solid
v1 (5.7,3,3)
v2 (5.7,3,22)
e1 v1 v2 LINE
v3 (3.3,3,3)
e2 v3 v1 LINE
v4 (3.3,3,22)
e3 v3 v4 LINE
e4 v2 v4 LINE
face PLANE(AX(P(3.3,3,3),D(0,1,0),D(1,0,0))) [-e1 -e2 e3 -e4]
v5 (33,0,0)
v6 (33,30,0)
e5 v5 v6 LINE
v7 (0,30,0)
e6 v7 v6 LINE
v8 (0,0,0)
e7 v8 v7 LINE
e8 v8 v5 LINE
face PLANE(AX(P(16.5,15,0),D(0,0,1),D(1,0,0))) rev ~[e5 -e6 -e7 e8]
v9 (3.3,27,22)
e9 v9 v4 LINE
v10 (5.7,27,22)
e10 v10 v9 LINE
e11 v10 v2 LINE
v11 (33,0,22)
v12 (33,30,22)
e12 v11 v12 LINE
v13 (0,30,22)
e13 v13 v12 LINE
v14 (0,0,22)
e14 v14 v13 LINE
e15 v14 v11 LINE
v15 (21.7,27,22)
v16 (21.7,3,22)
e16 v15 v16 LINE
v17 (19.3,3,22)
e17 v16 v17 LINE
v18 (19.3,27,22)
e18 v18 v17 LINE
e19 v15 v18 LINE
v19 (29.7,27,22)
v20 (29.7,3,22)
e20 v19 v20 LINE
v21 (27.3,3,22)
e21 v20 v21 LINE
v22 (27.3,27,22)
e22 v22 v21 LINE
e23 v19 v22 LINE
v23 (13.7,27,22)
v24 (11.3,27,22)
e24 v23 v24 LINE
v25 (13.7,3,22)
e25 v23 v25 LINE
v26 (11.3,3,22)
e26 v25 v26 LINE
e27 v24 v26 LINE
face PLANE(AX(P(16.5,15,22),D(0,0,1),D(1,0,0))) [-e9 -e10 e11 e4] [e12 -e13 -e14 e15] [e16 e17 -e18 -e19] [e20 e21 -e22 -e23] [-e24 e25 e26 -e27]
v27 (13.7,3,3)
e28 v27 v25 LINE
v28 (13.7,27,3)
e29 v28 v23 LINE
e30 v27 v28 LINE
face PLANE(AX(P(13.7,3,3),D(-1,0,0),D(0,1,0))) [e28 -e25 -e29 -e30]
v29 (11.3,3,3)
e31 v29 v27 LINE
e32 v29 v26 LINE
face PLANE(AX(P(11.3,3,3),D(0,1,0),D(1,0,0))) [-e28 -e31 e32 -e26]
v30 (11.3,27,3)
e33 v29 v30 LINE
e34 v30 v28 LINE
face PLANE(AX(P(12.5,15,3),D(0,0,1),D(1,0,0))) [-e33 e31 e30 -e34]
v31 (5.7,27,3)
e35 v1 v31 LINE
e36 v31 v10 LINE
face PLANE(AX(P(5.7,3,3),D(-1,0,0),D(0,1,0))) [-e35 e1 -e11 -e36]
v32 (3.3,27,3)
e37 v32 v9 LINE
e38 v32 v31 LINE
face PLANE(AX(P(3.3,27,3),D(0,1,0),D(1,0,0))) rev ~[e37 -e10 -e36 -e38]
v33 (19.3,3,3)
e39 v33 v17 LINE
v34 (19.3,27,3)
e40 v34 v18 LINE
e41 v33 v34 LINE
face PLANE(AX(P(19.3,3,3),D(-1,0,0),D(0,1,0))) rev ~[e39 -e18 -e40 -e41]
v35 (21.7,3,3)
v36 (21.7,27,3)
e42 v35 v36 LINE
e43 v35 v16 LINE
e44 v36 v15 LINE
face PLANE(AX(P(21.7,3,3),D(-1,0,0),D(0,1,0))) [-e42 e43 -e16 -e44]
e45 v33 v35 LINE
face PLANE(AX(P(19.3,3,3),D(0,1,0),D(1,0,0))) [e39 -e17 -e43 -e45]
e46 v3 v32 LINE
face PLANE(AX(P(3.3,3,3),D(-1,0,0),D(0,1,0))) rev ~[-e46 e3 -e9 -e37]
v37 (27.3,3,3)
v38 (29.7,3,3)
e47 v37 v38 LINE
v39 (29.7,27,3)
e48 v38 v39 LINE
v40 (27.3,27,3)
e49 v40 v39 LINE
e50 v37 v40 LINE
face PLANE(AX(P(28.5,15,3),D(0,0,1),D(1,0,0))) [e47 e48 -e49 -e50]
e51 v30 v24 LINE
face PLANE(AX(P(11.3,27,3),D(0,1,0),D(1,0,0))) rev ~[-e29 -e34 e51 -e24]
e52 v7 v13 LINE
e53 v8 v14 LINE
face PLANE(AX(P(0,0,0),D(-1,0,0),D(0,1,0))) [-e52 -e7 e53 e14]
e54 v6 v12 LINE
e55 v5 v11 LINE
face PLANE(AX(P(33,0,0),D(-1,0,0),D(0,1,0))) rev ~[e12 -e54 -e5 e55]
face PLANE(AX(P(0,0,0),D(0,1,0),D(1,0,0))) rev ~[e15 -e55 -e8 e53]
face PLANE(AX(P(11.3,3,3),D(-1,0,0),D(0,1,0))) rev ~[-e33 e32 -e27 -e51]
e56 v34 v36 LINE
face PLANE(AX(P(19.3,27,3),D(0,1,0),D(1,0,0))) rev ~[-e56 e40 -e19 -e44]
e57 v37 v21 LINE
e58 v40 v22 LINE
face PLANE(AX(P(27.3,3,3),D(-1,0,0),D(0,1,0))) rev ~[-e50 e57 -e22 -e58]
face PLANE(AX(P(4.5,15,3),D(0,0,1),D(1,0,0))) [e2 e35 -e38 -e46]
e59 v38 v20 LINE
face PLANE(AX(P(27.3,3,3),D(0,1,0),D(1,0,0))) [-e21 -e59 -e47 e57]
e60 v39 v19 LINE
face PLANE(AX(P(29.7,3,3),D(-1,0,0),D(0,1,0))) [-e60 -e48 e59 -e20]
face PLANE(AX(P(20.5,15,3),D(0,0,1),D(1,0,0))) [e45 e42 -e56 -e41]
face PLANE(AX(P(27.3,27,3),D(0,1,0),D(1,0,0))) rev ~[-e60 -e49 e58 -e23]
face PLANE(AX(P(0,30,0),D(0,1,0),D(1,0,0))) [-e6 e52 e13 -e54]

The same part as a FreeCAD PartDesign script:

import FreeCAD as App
import Part
import Sketcher

V = App.Vector
Q = App.Units.Quantity


def add_polygon(sketch, points):
    """Adds a closed chain of lines whose ends are joined by coincident constraints."""
    first, n = sketch.GeometryCount, len(points)
    for a, b in zip(points, points[1:] + points[:1]):
        sketch.addGeometry(Part.LineSegment(App.Vector(*a, 0), App.Vector(*b, 0)), False)
    for i in range(n):
        sketch.addConstraint(Sketcher.Constraint("Coincident", first + i, 2, first + (i + 1) % n, 1))

doc = App.newDocument("Part")
params = doc.addObject("Spreadsheet::Sheet", "Params")
for row, (alias, value) in enumerate([
    ("sketch1_height", "24 mm"),
    ("sketch1_width", "2.4 mm"),
    ("pad1_length", "22 mm"),
    ("sketch2_height", "24 mm"),
    ("sketch2_width", "2.4 mm"),
    ("pad2_length", "22 mm"),
    ("sketch3_height", "24 mm"),
    ("sketch3_width", "2.4 mm"),
    ("pad3_length", "22 mm"),
    ("sketch4_height", "24 mm"),
    ("sketch4_width", "2.4 mm"),
    ("pad4_length", "22 mm"),
    ("sketch5_width", "33 mm"),
    ("sketch5_height", "30 mm"),
    ("pad5_length", "22 mm"),
], start=1):
    params.set(f"A{row}", alias)
    params.set(f"B{row}", "=" + value)
    params.setAlias(f"B{row}", alias)

body = doc.addObject("PartDesign::Body", "Body")

# Sketch on XY plane
sketch1 = doc.addObject("Sketcher::SketchObject", "Sketch")
body.addObject(sketch1)
sketch1.AttachmentSupport = (doc.XY_Plane, [""])
sketch1.MapMode = "FlatFace"
sketch1.AttachmentOffset = App.Placement(V(0, 0, 3), App.Rotation())
add_polygon(sketch1, [(11.3, 27), (11.3, 3), (13.7, 3), (13.7, 27)])  # lines 0-3
sketch1.addConstraint(Sketcher.Constraint("Vertical", 0))
sketch1.addConstraint(Sketcher.Constraint("Horizontal", 1))
sketch1.addConstraint(Sketcher.Constraint("Vertical", 2))
sketch1.addConstraint(Sketcher.Constraint("Horizontal", 3))
sketch1.addConstraint(Sketcher.Constraint("DistanceY", 0, 2, 0, 1, Q("24 mm")))
sketch1.addConstraint(Sketcher.Constraint("DistanceX", 1, 1, 1, 2, Q("2.4 mm")))
sketch1.addConstraint(Sketcher.Constraint("DistanceY", -1, 1, 0, 2, Q("3 mm")))
sketch1.addConstraint(Sketcher.Constraint("DistanceX", -1, 1, 0, 2, Q("11.3 mm")))
sketch1.setExpression("Constraints[8]", "Params.sketch1_height")
sketch1.setExpression("Constraints[9]", "Params.sketch1_width")
pad1 = doc.addObject("PartDesign::Pad", "Pad")
body.addObject(pad1)
pad1.Profile = sketch1
pad1.setExpression("Length", "Params.pad1_length")
body2 = doc.addObject("PartDesign::Body", "Body001")

# Sketch on XY plane
sketch2 = doc.addObject("Sketcher::SketchObject", "Sketch001")
body2.addObject(sketch2)
sketch2.AttachmentSupport = (doc.getObject("XY_Plane001"), [""])
sketch2.MapMode = "FlatFace"
sketch2.AttachmentOffset = App.Placement(V(0, 0, 3), App.Rotation())
add_polygon(sketch2, [(19.3, 27), (19.3, 3), (21.7, 3), (21.7, 27)])  # lines 0-3
sketch2.addConstraint(Sketcher.Constraint("Vertical", 0))
sketch2.addConstraint(Sketcher.Constraint("Horizontal", 1))
sketch2.addConstraint(Sketcher.Constraint("Vertical", 2))
sketch2.addConstraint(Sketcher.Constraint("Horizontal", 3))
sketch2.addConstraint(Sketcher.Constraint("DistanceY", 0, 2, 0, 1, Q("24 mm")))
sketch2.addConstraint(Sketcher.Constraint("DistanceX", 1, 1, 1, 2, Q("2.4 mm")))
sketch2.addConstraint(Sketcher.Constraint("DistanceY", -1, 1, 0, 2, Q("3 mm")))
sketch2.addConstraint(Sketcher.Constraint("DistanceX", -1, 1, 0, 2, Q("19.3 mm")))
sketch2.setExpression("Constraints[8]", "Params.sketch2_height")
sketch2.setExpression("Constraints[9]", "Params.sketch2_width")
pad2 = doc.addObject("PartDesign::Pad", "Pad001")
body2.addObject(pad2)
pad2.Profile = sketch2
pad2.setExpression("Length", "Params.pad2_length")
body3 = doc.addObject("PartDesign::Body", "Body002")

# Sketch on XY plane
sketch3 = doc.addObject("Sketcher::SketchObject", "Sketch002")
body3.addObject(sketch3)
sketch3.AttachmentSupport = (doc.getObject("XY_Plane002"), [""])
sketch3.MapMode = "FlatFace"
sketch3.AttachmentOffset = App.Placement(V(0, 0, 3), App.Rotation())
add_polygon(sketch3, [(27.3, 27), (27.3, 3), (29.7, 3), (29.7, 27)])  # lines 0-3
sketch3.addConstraint(Sketcher.Constraint("Vertical", 0))
sketch3.addConstraint(Sketcher.Constraint("Horizontal", 1))
sketch3.addConstraint(Sketcher.Constraint("Vertical", 2))
sketch3.addConstraint(Sketcher.Constraint("Horizontal", 3))
sketch3.addConstraint(Sketcher.Constraint("DistanceY", 0, 2, 0, 1, Q("24 mm")))
sketch3.addConstraint(Sketcher.Constraint("DistanceX", 1, 1, 1, 2, Q("2.4 mm")))
sketch3.addConstraint(Sketcher.Constraint("DistanceY", -1, 1, 0, 2, Q("3 mm")))
sketch3.addConstraint(Sketcher.Constraint("DistanceX", -1, 1, 0, 2, Q("27.3 mm")))
sketch3.setExpression("Constraints[8]", "Params.sketch3_height")
sketch3.setExpression("Constraints[9]", "Params.sketch3_width")
pad3 = doc.addObject("PartDesign::Pad", "Pad002")
body3.addObject(pad3)
pad3.Profile = sketch3
pad3.setExpression("Length", "Params.pad3_length")
body4 = doc.addObject("PartDesign::Body", "Body003")
body4.AllowCompound = True

# Sketch on XY plane
sketch4 = doc.addObject("Sketcher::SketchObject", "Sketch003")
body4.addObject(sketch4)
sketch4.AttachmentSupport = (doc.getObject("XY_Plane003"), [""])
sketch4.MapMode = "FlatFace"
sketch4.AttachmentOffset = App.Placement(V(0, 0, 3), App.Rotation())
add_polygon(sketch4, [(3.3, 27), (3.3, 3), (5.7, 3), (5.7, 27)])  # lines 0-3
sketch4.addConstraint(Sketcher.Constraint("Vertical", 0))
sketch4.addConstraint(Sketcher.Constraint("Horizontal", 1))
sketch4.addConstraint(Sketcher.Constraint("Vertical", 2))
sketch4.addConstraint(Sketcher.Constraint("Horizontal", 3))
sketch4.addConstraint(Sketcher.Constraint("DistanceY", 0, 2, 0, 1, Q("24 mm")))
sketch4.addConstraint(Sketcher.Constraint("DistanceX", 1, 1, 1, 2, Q("2.4 mm")))
sketch4.addConstraint(Sketcher.Constraint("DistanceY", -1, 1, 0, 2, Q("3 mm")))
sketch4.addConstraint(Sketcher.Constraint("DistanceX", -1, 1, 0, 2, Q("3.3 mm")))
sketch4.setExpression("Constraints[8]", "Params.sketch4_height")
sketch4.setExpression("Constraints[9]", "Params.sketch4_width")
pad4 = doc.addObject("PartDesign::Pad", "Pad003")
body4.addObject(pad4)
pad4.Profile = sketch4
pad4.setExpression("Length", "Params.pad4_length")
doc.recompute()

boolean = doc.addObject("PartDesign::Boolean", "Boolean")
body4.addObject(boolean)
boolean.Type = "Fuse"
boolean.addObjects([body])
doc.recompute()

boolean2 = doc.addObject("PartDesign::Boolean", "Boolean001")
body4.addObject(boolean2)
boolean2.Type = "Fuse"
boolean2.addObjects([body2])
doc.recompute()

boolean3 = doc.addObject("PartDesign::Boolean", "Boolean002")
body4.addObject(boolean3)
boolean3.Type = "Fuse"
boolean3.addObjects([body3])
body5 = doc.addObject("PartDesign::Body", "Body004")

# Sketch on XY plane
sketch5 = doc.addObject("Sketcher::SketchObject", "Sketch004")
body5.addObject(sketch5)
sketch5.AttachmentSupport = (doc.getObject("XY_Plane004"), [""])
sketch5.MapMode = "FlatFace"
add_polygon(sketch5, [(0, 30), (0, 0), (33, 0), (33, 30)])  # lines 0-3
sketch5.addConstraint(Sketcher.Constraint("Vertical", 0))
sketch5.addConstraint(Sketcher.Constraint("Horizontal", 1))
sketch5.addConstraint(Sketcher.Constraint("Vertical", 2))
sketch5.addConstraint(Sketcher.Constraint("Horizontal", 3))
sketch5.addConstraint(Sketcher.Constraint("Coincident", 0, 2, -1, 1))
sketch5.addConstraint(Sketcher.Constraint("DistanceX", 1, 1, 1, 2, Q("33 mm")))
sketch5.addConstraint(Sketcher.Constraint("DistanceY", 0, 2, 0, 1, Q("30 mm")))
sketch5.setExpression("Constraints[9]", "Params.sketch5_width")
sketch5.setExpression("Constraints[10]", "Params.sketch5_height")
pad5 = doc.addObject("PartDesign::Pad", "Pad004")
body5.addObject(pad5)
pad5.Profile = sketch5
pad5.setExpression("Length", "Params.pad5_length")
doc.recompute()

boolean4 = doc.addObject("PartDesign::Boolean", "Boolean003")
body5.addObject(boolean4)
boolean4.Type = "Cut"
boolean4.addObjects([body4])

doc.recompute()
